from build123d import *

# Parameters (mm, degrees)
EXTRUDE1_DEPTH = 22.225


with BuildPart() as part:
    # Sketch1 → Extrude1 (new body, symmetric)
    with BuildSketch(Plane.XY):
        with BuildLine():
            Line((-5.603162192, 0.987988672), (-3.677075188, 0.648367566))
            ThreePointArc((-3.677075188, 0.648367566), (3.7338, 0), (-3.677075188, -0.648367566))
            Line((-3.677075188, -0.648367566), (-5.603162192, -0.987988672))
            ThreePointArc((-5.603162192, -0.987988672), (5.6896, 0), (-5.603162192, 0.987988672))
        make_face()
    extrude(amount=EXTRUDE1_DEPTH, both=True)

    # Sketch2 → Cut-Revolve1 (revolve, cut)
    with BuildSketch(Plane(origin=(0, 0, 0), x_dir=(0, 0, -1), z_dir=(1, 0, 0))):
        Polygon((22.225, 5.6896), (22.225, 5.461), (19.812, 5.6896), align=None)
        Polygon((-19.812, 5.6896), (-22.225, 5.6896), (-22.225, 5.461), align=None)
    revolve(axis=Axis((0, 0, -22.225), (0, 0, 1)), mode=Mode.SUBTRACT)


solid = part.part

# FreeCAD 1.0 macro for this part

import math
import FreeCAD as App
import Part
import Sketcher
Q = App.Units.Quantity


def add_polygon(sketch, points):
    """Adds a closed chain of lines whose ends are joined by coincident constraints."""
    first, n = sketch.GeometryCount, len(points)
    for a, b in zip(points, points[1:] + points[:1]):
        sketch.addGeometry(Part.LineSegment(App.Vector(*a, 0), App.Vector(*b, 0)), False)
    for i in range(n):
        sketch.addConstraint(Sketcher.Constraint("Coincident", first + i, 2, first + (i + 1) % n, 1))

doc = App.newDocument("Part")
body = doc.addObject("PartDesign::Body", "Body")

# Sketch on XY plane
sketch1 = body.newObject("Sketcher::SketchObject", "Sketch")
sketch1.AttachmentSupport = (doc.getObject("XY_Plane"), [""])
sketch1.MapMode = "FlatFace"
sketch1.addGeometry(Part.LineSegment(App.Vector(-5.6, 1, 0), App.Vector(-3.7, 0.6, 0)), False)
sketch1.addGeometry(Part.ArcOfCircle(Part.Circle(App.Vector(0, 0, 0), App.Vector(0, 0, 1), 3.7), math.radians(-170), math.radians(170)), False)
sketch1.addGeometry(Part.LineSegment(App.Vector(-3.7, -0.6, 0), App.Vector(-5.6, -1, 0)), False)
sketch1.addGeometry(Part.ArcOfCircle(Part.Circle(App.Vector(0, 0, 0), App.Vector(0, 0, 1), 5.7), math.radians(-170), math.radians(170)), False)
sketch1.addConstraint(Sketcher.Constraint("Coincident", 0, 2, 1, 2))
sketch1.addConstraint(Sketcher.Constraint("Coincident", 1, 1, 2, 1))
sketch1.addConstraint(Sketcher.Constraint("Coincident", 2, 2, 3, 1))
sketch1.addConstraint(Sketcher.Constraint("Coincident", 3, 2, 0, 1))
sketch1.addConstraint(Sketcher.Constraint("Coincident", 1, 3, -1, 1))
sketch1.addConstraint(Sketcher.Constraint("Coincident", 3, 3, -1, 1))
sketch1.addConstraint(Sketcher.Constraint("Vertical", 0, 2, 1, 1))
sketch1.addConstraint(Sketcher.Constraint("Vertical", 2, 2, 3, 2))
sketch1.addConstraint(Sketcher.Constraint("Angle", 0, Q("-10 deg")))
sketch1.addConstraint(Sketcher.Constraint("Radius", 1, Q("0.147 in")))
sketch1.addConstraint(Sketcher.Constraint("Radius", 3, Q("0.224 in")))
sketch1.addConstraint(Sketcher.Constraint("DistanceY", 2, 2, -1, 1, Q("0.987989 mm")))
pad1 = body.newObject("PartDesign::Pad", "Pad")
pad1.Profile = sketch1
pad1.Length = Q("1.75 in")
pad1.Midplane = True

# Sketch on YZ plane
sketch2 = body.newObject("Sketcher::SketchObject", "Sketch001")
sketch2.AttachmentSupport = (doc.getObject("YZ_Plane"), [""])
sketch2.MapMode = "FlatFace"
add_polygon(sketch2, [(5.46, -22.23), (5.69, -22.23), (5.69, -19.81)])  # lines 0-2
add_polygon(sketch2, [(5.69, 19.81), (5.69, 22.23), (5.46, 22.23)])  # lines 3-5
sketch2.addConstraint(Sketcher.Constraint("Horizontal", 0))
sketch2.addConstraint(Sketcher.Constraint("Vertical", 1))
sketch2.addConstraint(Sketcher.Constraint("Vertical", 3))
sketch2.addConstraint(Sketcher.Constraint("Horizontal", 4))
sketch2.addConstraint(Sketcher.Constraint("Symmetric", 0, 2, 3, 2, -1))
sketch2.addConstraint(Sketcher.Constraint("Vertical", 2, 2, 4, 2))
sketch2.addConstraint(Sketcher.Constraint("Equal", 1, 3))
sketch2.addConstraint(Sketcher.Constraint("DistanceX", 0, 1, 0, 2, Q("0.009 in")))
sketch2.addConstraint(Sketcher.Constraint("DistanceY", 1, 1, 1, 2, Q("0.095 in")))
sketch2.addConstraint(Sketcher.Constraint("DistanceY", 1, 2, -1, 1, Q("0.78 in")))
sketch2.addConstraint(Sketcher.Constraint("DistanceX", -1, 1, 0, 2, Q("0.224 in")))
groove = body.newObject("PartDesign::Groove", "Groove")
groove.Profile = sketch2
groove.ReferenceAxis = (sketch2, ["V_Axis"])
groove.Angle = 360

doc.recompute()
